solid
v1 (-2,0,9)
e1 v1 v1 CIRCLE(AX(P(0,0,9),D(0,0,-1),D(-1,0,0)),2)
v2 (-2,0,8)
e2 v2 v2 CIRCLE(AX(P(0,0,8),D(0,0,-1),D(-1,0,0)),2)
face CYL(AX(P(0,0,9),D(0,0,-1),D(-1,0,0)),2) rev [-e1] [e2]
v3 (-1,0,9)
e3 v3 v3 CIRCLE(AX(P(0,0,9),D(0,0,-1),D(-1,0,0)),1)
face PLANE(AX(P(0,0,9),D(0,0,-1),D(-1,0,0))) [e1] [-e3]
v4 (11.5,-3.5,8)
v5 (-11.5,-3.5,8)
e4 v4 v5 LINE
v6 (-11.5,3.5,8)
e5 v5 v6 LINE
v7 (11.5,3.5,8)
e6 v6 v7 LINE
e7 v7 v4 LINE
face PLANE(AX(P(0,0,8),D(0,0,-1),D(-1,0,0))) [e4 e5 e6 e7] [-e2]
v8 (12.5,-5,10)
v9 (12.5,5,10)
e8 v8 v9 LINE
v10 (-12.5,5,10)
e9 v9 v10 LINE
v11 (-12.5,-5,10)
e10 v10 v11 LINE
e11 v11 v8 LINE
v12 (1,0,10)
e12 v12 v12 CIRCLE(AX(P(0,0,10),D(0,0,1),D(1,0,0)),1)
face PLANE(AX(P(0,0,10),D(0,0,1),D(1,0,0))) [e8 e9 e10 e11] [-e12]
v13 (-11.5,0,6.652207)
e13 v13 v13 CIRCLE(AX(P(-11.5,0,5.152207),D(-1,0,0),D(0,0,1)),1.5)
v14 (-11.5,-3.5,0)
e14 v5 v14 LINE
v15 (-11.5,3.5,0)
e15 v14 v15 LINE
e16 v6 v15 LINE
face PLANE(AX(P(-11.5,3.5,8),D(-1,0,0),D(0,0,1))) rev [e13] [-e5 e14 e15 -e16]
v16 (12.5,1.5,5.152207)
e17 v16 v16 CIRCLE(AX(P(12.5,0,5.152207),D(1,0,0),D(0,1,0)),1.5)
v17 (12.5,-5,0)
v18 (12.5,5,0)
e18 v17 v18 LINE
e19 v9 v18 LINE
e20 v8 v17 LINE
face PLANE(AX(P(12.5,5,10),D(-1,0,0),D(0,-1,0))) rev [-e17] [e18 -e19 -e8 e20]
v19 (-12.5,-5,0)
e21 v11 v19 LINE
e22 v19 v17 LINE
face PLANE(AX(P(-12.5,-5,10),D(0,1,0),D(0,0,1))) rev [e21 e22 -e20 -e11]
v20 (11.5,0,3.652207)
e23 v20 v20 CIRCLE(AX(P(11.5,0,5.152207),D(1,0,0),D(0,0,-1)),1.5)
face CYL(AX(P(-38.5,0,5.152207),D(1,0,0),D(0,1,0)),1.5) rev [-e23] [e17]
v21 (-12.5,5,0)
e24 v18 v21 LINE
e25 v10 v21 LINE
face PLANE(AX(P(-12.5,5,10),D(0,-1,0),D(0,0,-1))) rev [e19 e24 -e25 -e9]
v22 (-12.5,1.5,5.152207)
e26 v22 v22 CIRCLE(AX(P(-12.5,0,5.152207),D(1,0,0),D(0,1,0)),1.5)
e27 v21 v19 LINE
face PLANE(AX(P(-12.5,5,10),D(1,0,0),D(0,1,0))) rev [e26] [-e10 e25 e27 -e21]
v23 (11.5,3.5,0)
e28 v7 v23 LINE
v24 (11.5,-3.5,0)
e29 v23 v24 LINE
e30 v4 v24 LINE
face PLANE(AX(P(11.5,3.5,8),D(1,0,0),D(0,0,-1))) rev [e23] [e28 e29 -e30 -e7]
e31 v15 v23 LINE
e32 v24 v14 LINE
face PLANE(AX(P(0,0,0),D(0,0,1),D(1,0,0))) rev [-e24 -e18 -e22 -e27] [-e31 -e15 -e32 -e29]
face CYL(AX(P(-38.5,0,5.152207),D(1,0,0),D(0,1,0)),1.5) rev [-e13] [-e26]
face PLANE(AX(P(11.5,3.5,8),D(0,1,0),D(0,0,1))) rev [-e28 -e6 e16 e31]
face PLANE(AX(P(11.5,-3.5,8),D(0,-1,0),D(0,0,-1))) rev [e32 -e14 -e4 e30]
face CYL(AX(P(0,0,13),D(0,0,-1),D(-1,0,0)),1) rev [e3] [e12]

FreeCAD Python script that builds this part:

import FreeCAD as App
import Part
import Sketcher


def add_polygon(sketch, points):
    """Adds a closed chain of lines whose ends are joined by coincident constraints."""
    first, n = sketch.GeometryCount, len(points)
    for a, b in zip(points, points[1:] + points[:1]):
        sketch.addGeometry(Part.LineSegment(App.Vector(*a, 0), App.Vector(*b, 0)), False)
    for i in range(n):
        sketch.addConstraint(Sketcher.Constraint("Coincident", first + i, 2, first + (i + 1) % n, 1))

doc = App.newDocument("Part")
params = doc.addObject("Spreadsheet::Sheet", "Params")
for row, (alias, value) in enumerate([
    ("sketch1_width", "25 mm"),
    ("sketch1_height", "10 mm"),
    ("pad1_length", "10 mm"),
    ("sketch2_width", "23 mm"),
    ("sketch2_height", "7 mm"),
    ("pocket1_length", "8 mm"),
    ("sketch3_diameter", "3 mm"),
    ("pocket2_length", "51 mm"),
    ("sketch4_diameter", "4 mm"),
    ("pocket3_length", "1 mm"),
    ("sketch5_diameter", "2 mm"),
    ("pocket4_length", "4 mm"),
], start=1):
    params.set(f"A{row}", alias)
    params.set(f"B{row}", "=" + value)
    params.setAlias(f"B{row}", alias)

body = doc.addObject("PartDesign::Body", "Body")

sketch1 = body.newObject("Sketcher::SketchObject", "Sketch")
sketch1.AttachmentSupport = (doc.getObject("XY_Plane"), [""])
sketch1.MapMode = "FlatFace"
add_polygon(sketch1, [(-12.5, 5), (-12.5, -5), (12.5, -5), (12.5, 5)])
sketch1.addConstraint(Sketcher.Constraint("Vertical", 0))
sketch1.addConstraint(Sketcher.Constraint("Horizontal", 1))
sketch1.addConstraint(Sketcher.Constraint("Vertical", 2))
sketch1.addConstraint(Sketcher.Constraint("Horizontal", 3))
sketch1.addConstraint(Sketcher.Constraint("Symmetric", 0, 2, 2, 2, -1, 1))
sketch1.addConstraint(Sketcher.Constraint("DistanceX", 1, 1, 1, 2, 25.0))
sketch1.addConstraint(Sketcher.Constraint("DistanceY", 0, 2, 0, 1, 10.0))
sketch1.setExpression("Constraints[9]", "Params.sketch1_width")
sketch1.setExpression("Constraints[10]", "Params.sketch1_height")
pad1 = body.newObject("PartDesign::Pad", "Pad")
pad1.Profile = sketch1
pad1.setExpression("Length", "Params.pad1_length")

sketch2 = body.newObject("Sketcher::SketchObject", "Sketch001")
sketch2.AttachmentSupport = (doc.getObject("XY_Plane"), [""])
sketch2.MapMode = "FlatFace"
add_polygon(sketch2, [(11.5, 3.5), (11.5, -3.5), (-11.5, -3.5), (-11.5, 3.5)])
sketch2.addConstraint(Sketcher.Constraint("Vertical", 0))
sketch2.addConstraint(Sketcher.Constraint("Horizontal", 1))
sketch2.addConstraint(Sketcher.Constraint("Vertical", 2))
sketch2.addConstraint(Sketcher.Constraint("Horizontal", 3))
sketch2.addConstraint(Sketcher.Constraint("Symmetric", 0, 2, 2, 2, -1, 1))
sketch2.addConstraint(Sketcher.Constraint("DistanceX", 1, 2, 1, 1, 23.0))
sketch2.addConstraint(Sketcher.Constraint("DistanceY", 0, 2, 0, 1, 7.0))
sketch2.setExpression("Constraints[9]", "Params.sketch2_width")
sketch2.setExpression("Constraints[10]", "Params.sketch2_height")
pocket1 = body.newObject("PartDesign::Pocket", "Pocket")
pocket1.Profile = sketch2
pocket1.setExpression("Length", "Params.pocket1_length")
pocket1.Reversed = True

sketch3 = body.newObject("Sketcher::SketchObject", "Sketch002")
sketch3.AttachmentSupport = (doc.getObject("YZ_Plane"), [""])
sketch3.MapMode = "FlatFace"
sketch3.AttachmentOffset = App.Placement(App.Vector(0, 0, 12.5), App.Rotation())
sketch3.addGeometry(Part.Circle(App.Vector(0, 5.152207, 0), App.Vector(0, 0, 1), 1.5), False)
sketch3.addConstraint(Sketcher.Constraint("PointOnObject", 0, 3, -2))
sketch3.addConstraint(Sketcher.Constraint("Diameter", 0, 3.0))
sketch3.addConstraint(Sketcher.Constraint("DistanceY", -1, 1, 0, 3, 5.152207))
sketch3.setExpression("Constraints[1]", "Params.sketch3_diameter")
pocket2 = body.newObject("PartDesign::Pocket", "Pocket001")
pocket2.Profile = sketch3
pocket2.setExpression("Length", "Params.pocket2_length")

sketch4 = body.newObject("Sketcher::SketchObject", "Sketch003")
sketch4.AttachmentSupport = (doc.getObject("XY_Plane"), [""])
sketch4.MapMode = "FlatFace"
sketch4.AttachmentOffset = App.Placement(App.Vector(0, 0, 8), App.Rotation())
sketch4.addGeometry(Part.Circle(App.Vector(0, 0, 0), App.Vector(0, 0, 1), 2), False)
sketch4.addConstraint(Sketcher.Constraint("Coincident", 0, 3, -1, 1))
sketch4.addConstraint(Sketcher.Constraint("Diameter", 0, 4.0))
sketch4.setExpression("Constraints[1]", "Params.sketch4_diameter")
pocket3 = body.newObject("PartDesign::Pocket", "Pocket002")
pocket3.Profile = sketch4
pocket3.setExpression("Length", "Params.pocket3_length")
pocket3.Reversed = True

sketch5 = body.newObject("Sketcher::SketchObject", "Sketch004")
sketch5.AttachmentSupport = (doc.getObject("XY_Plane"), [""])
sketch5.MapMode = "FlatFace"
sketch5.AttachmentOffset = App.Placement(App.Vector(0, 0, 9), App.Rotation())
sketch5.addGeometry(Part.Circle(App.Vector(0, 0, 0), App.Vector(0, 0, 1), 1), False)
sketch5.addConstraint(Sketcher.Constraint("Coincident", 0, 3, -1, 1))
sketch5.addConstraint(Sketcher.Constraint("Diameter", 0, 2.0))
sketch5.setExpression("Constraints[1]", "Params.sketch5_diameter")
pocket4 = body.newObject("PartDesign::Pocket", "Pocket003")
pocket4.Profile = sketch5
pocket4.setExpression("Length", "Params.pocket4_length")
pocket4.Reversed = True

doc.recompute()
